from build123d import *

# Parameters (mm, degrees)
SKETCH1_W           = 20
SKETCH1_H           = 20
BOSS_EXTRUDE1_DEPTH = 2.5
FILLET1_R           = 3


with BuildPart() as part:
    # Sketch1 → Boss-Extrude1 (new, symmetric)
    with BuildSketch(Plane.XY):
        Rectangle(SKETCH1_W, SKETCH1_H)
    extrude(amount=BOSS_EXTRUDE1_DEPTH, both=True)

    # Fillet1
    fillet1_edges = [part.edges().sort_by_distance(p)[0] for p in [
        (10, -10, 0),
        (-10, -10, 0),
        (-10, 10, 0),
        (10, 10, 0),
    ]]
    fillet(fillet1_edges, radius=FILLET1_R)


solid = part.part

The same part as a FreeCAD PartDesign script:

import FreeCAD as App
import Part
import Sketcher

V = App.Vector
Q = App.Units.Quantity


def edges_at(feature, points):
    """Names of the edges that pass closest to the given points."""
    edges = feature.Shape.Edges
    near = lambda p: min(range(len(edges)), key=lambda i: edges[i].distToShape(Part.Vertex(*p))[0])
    return sorted({f"Edge{near(p) + 1}" for p in points})


def add_polygon(sketch, points):
    """Adds a closed chain of lines whose ends are joined by coincident constraints."""
    first, n = sketch.GeometryCount, len(points)
    for a, b in zip(points, points[1:] + points[:1]):
        sketch.addGeometry(Part.LineSegment(App.Vector(*a, 0), App.Vector(*b, 0)), False)
    for i in range(n):
        sketch.addConstraint(Sketcher.Constraint("Coincident", first + i, 2, first + (i + 1) % n, 1))

doc = App.newDocument("Part")
body = doc.addObject("PartDesign::Body", "Body")

# Sketch on XY plane
sketch1 = body.newObject("Sketcher::SketchObject", "Sketch")
sketch1.AttachmentSupport = (doc.getObject("XY_Plane"), [""])
sketch1.MapMode = "FlatFace"
add_polygon(sketch1, [(-10, 10), (-10, -10), (10, -10), (10, 10)])  # lines 0-3
sketch1.addConstraint([
    Sketcher.Constraint("Vertical", 0),
    Sketcher.Constraint("Horizontal", 1),
    Sketcher.Constraint("Vertical", 2),
    Sketcher.Constraint("Horizontal", 3),
    Sketcher.Constraint("Symmetric", 0, 2, 2, 2, -1, 1),
    Sketcher.Constraint("Equal", 3, 0),
    Sketcher.Constraint("DistanceX", 1, 1, 1, 2, Q("20 mm")),
])
pad1 = body.newObject("PartDesign::Pad", "Pad")
pad1.Profile = sketch1
pad1.Length = 5
pad1.Midplane = True
doc.recompute()

fillet = body.newObject("PartDesign::Fillet", "Fillet")
fillet.Base = (pad1, edges_at(pad1, [
    (10, -10, 0),
    (-10, -10, 0),
    (-10, 10, 0),
    (10, 10, 0),
]))
fillet.Radius = 3

doc.recompute()
